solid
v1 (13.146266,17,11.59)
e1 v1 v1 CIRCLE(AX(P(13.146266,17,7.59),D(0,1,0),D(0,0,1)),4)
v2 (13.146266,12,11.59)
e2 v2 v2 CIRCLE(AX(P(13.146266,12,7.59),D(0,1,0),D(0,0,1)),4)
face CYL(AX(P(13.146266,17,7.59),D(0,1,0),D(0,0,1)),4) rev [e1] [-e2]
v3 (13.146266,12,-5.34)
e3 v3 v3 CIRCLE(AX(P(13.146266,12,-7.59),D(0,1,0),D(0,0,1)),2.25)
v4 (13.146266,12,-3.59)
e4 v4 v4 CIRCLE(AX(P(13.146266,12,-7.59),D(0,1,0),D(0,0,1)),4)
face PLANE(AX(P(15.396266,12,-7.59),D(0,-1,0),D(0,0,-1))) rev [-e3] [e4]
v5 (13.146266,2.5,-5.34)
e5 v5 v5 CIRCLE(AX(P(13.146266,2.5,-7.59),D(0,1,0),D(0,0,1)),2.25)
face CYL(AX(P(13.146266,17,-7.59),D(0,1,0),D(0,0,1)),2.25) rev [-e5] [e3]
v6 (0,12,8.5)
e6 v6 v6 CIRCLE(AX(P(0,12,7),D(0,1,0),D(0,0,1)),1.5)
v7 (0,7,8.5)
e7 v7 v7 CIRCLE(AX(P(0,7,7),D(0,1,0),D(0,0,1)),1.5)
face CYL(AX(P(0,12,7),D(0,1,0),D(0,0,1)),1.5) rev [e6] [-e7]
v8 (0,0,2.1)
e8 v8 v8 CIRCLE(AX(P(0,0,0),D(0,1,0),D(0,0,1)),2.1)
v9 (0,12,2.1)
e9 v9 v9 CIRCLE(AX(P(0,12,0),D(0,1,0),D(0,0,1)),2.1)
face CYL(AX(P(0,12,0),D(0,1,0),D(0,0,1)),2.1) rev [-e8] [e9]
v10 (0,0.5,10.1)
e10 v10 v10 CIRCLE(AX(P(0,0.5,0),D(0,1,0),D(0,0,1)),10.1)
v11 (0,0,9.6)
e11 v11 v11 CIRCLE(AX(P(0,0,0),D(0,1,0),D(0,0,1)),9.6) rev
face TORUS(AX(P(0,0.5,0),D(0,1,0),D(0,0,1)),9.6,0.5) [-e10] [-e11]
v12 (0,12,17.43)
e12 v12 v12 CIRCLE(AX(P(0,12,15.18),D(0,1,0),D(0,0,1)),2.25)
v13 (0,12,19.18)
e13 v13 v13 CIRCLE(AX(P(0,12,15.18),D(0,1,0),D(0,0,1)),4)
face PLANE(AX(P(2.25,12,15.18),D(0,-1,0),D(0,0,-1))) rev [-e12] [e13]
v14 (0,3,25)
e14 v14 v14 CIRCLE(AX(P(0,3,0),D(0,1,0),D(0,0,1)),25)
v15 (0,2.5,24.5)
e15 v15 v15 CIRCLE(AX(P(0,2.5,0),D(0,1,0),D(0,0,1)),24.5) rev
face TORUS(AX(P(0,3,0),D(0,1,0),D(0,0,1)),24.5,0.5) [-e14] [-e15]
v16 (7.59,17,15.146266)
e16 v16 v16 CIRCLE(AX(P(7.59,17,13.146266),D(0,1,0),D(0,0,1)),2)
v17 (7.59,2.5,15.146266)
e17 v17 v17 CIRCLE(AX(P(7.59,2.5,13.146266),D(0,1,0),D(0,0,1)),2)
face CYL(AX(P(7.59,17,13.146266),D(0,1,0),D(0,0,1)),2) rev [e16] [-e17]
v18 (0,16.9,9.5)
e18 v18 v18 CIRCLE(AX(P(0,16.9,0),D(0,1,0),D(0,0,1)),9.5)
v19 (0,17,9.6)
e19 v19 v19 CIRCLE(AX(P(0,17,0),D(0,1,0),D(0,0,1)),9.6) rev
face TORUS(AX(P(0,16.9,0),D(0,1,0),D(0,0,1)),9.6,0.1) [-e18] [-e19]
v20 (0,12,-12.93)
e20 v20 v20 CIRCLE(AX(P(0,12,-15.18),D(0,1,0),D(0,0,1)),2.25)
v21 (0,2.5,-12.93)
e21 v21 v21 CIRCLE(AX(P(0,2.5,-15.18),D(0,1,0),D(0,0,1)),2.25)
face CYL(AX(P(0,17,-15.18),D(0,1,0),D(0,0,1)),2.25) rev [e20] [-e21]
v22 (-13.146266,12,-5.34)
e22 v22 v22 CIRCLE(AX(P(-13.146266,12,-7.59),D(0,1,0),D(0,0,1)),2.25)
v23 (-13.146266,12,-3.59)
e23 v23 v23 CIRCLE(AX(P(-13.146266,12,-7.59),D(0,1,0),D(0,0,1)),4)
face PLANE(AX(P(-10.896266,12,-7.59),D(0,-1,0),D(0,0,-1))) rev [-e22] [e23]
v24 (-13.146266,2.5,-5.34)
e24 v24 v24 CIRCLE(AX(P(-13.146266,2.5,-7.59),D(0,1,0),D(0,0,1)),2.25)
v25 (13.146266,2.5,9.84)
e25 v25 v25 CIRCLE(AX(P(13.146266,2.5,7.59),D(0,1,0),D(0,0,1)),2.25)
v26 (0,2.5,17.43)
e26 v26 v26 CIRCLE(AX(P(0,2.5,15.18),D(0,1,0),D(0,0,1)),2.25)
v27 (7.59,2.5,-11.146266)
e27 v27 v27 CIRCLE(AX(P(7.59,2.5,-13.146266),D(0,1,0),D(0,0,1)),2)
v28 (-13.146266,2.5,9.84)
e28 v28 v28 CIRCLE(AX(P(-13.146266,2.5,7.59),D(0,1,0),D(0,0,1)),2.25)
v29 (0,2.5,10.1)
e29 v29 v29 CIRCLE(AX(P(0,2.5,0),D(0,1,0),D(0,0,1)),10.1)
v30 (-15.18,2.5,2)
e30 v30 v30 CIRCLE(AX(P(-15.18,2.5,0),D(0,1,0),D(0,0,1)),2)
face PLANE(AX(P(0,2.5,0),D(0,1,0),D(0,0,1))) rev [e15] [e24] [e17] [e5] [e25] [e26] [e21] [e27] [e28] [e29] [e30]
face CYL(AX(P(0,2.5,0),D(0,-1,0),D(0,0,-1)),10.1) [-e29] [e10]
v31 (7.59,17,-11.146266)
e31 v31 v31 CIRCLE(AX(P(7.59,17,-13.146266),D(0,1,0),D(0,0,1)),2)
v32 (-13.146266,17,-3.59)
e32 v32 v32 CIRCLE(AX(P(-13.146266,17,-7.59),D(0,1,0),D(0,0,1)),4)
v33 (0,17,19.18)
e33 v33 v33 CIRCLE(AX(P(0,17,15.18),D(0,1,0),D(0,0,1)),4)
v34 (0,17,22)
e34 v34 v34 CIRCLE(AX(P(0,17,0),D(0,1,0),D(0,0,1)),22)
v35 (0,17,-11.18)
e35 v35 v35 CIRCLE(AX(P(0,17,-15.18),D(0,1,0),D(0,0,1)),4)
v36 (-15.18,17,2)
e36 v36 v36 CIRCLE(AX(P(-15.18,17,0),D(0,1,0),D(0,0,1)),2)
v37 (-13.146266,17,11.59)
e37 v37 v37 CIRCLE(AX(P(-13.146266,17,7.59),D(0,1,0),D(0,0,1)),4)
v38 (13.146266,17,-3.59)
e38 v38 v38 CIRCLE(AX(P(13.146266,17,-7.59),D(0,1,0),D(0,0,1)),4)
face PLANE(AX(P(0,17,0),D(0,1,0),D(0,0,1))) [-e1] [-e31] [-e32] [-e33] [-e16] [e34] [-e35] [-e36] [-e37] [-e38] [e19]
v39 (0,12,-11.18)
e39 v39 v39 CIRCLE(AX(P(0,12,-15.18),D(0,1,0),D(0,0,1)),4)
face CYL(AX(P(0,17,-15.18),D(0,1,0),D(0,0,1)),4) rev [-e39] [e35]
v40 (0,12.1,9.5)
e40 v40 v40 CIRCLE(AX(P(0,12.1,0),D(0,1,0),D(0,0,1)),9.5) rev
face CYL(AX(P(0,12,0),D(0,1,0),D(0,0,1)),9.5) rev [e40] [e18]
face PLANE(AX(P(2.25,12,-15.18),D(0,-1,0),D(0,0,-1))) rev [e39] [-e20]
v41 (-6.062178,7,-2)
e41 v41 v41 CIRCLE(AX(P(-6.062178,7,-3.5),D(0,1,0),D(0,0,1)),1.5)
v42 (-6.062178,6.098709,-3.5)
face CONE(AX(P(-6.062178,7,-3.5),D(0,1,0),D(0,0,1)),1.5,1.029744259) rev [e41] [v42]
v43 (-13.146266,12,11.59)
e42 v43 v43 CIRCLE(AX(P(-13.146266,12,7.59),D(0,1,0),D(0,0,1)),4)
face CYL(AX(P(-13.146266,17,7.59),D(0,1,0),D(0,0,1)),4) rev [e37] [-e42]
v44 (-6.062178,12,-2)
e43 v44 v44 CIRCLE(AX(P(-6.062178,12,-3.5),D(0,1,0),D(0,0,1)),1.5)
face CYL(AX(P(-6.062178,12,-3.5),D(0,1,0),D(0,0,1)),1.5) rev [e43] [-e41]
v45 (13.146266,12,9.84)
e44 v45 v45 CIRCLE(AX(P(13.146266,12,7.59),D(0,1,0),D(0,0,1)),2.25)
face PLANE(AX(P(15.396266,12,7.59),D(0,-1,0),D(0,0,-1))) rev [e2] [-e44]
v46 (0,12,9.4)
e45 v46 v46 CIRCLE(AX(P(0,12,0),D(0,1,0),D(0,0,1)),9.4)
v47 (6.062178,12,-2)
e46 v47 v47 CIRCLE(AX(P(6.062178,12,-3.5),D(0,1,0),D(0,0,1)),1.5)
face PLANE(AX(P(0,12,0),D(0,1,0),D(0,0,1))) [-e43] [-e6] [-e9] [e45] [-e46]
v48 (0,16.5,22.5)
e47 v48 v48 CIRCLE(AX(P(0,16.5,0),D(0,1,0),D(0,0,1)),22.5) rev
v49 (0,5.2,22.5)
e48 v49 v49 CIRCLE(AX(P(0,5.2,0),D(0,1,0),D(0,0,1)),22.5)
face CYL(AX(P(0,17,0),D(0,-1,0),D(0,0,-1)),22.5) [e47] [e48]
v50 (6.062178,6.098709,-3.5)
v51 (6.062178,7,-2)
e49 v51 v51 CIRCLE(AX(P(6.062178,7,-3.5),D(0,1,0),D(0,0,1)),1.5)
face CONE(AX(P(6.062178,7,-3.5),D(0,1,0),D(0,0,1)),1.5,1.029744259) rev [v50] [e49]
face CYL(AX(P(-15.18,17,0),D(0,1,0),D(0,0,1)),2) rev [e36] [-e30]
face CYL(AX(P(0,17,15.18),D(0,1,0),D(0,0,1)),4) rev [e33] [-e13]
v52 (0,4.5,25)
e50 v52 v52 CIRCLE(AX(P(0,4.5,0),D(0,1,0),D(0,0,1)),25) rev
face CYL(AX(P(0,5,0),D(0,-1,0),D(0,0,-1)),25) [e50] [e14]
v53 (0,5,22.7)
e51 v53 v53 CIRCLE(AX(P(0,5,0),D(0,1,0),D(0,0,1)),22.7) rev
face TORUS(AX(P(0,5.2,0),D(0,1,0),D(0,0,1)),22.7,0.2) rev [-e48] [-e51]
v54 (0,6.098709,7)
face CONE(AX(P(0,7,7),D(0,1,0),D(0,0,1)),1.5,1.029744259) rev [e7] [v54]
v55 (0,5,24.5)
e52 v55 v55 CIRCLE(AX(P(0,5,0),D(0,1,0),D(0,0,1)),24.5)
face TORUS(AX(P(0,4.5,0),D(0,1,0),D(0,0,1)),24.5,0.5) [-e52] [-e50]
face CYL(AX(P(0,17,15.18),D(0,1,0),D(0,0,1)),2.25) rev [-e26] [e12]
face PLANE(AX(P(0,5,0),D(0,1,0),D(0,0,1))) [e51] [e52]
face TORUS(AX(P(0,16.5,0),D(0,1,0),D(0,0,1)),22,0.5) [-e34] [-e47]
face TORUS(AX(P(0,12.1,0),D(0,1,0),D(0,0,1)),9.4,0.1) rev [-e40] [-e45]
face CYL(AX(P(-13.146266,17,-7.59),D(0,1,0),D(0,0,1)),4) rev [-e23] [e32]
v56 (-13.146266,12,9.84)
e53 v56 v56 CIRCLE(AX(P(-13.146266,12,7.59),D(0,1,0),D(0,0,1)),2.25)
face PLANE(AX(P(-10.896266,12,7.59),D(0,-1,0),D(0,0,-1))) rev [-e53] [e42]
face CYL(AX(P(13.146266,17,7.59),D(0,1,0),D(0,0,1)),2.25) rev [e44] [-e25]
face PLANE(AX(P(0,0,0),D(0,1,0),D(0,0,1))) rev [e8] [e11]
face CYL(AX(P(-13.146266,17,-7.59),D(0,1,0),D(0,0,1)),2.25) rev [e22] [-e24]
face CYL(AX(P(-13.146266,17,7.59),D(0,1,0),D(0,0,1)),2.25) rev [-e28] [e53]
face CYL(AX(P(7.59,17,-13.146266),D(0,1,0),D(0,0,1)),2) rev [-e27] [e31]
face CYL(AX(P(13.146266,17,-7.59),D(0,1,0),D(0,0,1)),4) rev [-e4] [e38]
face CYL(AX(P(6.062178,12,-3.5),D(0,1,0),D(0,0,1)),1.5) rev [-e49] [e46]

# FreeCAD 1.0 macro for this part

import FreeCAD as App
import Part
import Sketcher

V = App.Vector
Q = App.Units.Quantity


def edges_at(feature, points):
    """Names of the edges that pass closest to the given points."""
    edges = feature.Shape.Edges
    near = lambda p: min(range(len(edges)), key=lambda i: edges[i].distToShape(Part.Vertex(*p))[0])
    return sorted({f"Edge{near(p) + 1}" for p in points})

doc = App.newDocument("Part")
params = doc.addObject("Spreadsheet::Sheet", "Params")
for row, (alias, value) in enumerate([
    ("sketch1_diameter", "20.2 mm"),
    ("pad1_length", "2.5 mm"),
    ("sketch2_diameter", "50 mm"),
    ("pad2_length", "2.5 mm"),
    ("sketch3_diameter", "45 mm"),
    ("pad3_length", "12 mm"),
    ("sketch4_diameter", "4.5 mm"),
    ("hole_diameter", "4.5 mm"),
    ("hole_cbore_diameter", "8 mm"),
    ("hole_cbore_depth", "5 mm"),
    ("fillet_radius", "0.5 mm"),
    ("fillet2_radius", "0.2 mm"),
    ("sketch5_diameter", "4 mm"),
    ("hole2_diameter", "4 mm"),
    ("sketch6_diameter", "19 mm"),
    ("pocket1_length", "5 mm"),
    ("fillet3_radius", "0.1 mm"),
    ("sketch7_width", "5 mm"),
    ("sketch7_height", "1.5 mm"),
    ("groove_angle", "360 deg"),
    ("sketch8_diameter", "4.2 mm"),
    ("hole3_diameter", "4.2 mm"),
], start=1):
    params.set(f"A{row}", alias)
    params.set(f"B{row}", "=" + value)
    params.setAlias(f"B{row}", alias)

body = doc.addObject("PartDesign::Body", "Body")

# Sketch on XZ plane
sketch1 = body.newObject("Sketcher::SketchObject", "Sketch")
sketch1.AttachmentSupport = (doc.getObject("XZ_Plane"), [""])
sketch1.MapMode = "FlatFace"
sketch1.addGeometry(Part.Circle(V(0, 0, 0), V(0, 0, 1), 10.1), False)
sketch1.addConstraint(Sketcher.Constraint("Coincident", 0, 3, -1, 1))
sketch1.addConstraint(Sketcher.Constraint("Diameter", 0, Q("20.2 mm")))
sketch1.setExpression("Constraints[1]", "Params.sketch1_diameter")
pad1 = body.newObject("PartDesign::Pad", "Pad")
pad1.Profile = sketch1
pad1.setExpression("Length", "Params.pad1_length")
pad1.Reversed = True

# Sketch on XZ plane
sketch2 = body.newObject("Sketcher::SketchObject", "Sketch001")
sketch2.AttachmentSupport = (doc.getObject("XZ_Plane"), [""])
sketch2.MapMode = "FlatFace"
sketch2.AttachmentOffset = App.Placement(V(0, 0, -2.5), App.Rotation())
sketch2.addGeometry(Part.Circle(V(0, 0, 0), V(0, 0, 1), 25), False)
sketch2.addConstraint(Sketcher.Constraint("Coincident", 0, 3, -1, 1))
sketch2.addConstraint(Sketcher.Constraint("Diameter", 0, Q("50 mm")))
sketch2.setExpression("Constraints[1]", "Params.sketch2_diameter")
pad2 = body.newObject("PartDesign::Pad", "Pad001")
pad2.Profile = sketch2
pad2.setExpression("Length", "Params.pad2_length")
pad2.Reversed = True

# Sketch on XZ plane
sketch3 = body.newObject("Sketcher::SketchObject", "Sketch002")
sketch3.AttachmentSupport = (doc.getObject("XZ_Plane"), [""])
sketch3.MapMode = "FlatFace"
sketch3.AttachmentOffset = App.Placement(V(0, 0, -5), App.Rotation())
sketch3.addGeometry(Part.Circle(V(0, 0, 0), V(0, 0, 1), 22.5), False)
sketch3.addConstraint(Sketcher.Constraint("Coincident", 0, 3, -1, 1))
sketch3.addConstraint(Sketcher.Constraint("Diameter", 0, Q("45 mm")))
sketch3.setExpression("Constraints[1]", "Params.sketch3_diameter")
pad3 = body.newObject("PartDesign::Pad", "Pad002")
pad3.Profile = sketch3
pad3.setExpression("Length", "Params.pad3_length")
pad3.Reversed = True

# Sketch on XZ plane
sketch4 = body.newObject("Sketcher::SketchObject", "Sketch003")
sketch4.AttachmentSupport = (doc.getObject("XZ_Plane"), [""])
sketch4.MapMode = "FlatFace"
sketch4.AttachmentOffset = App.Placement(V(0, 0, -17), App.Rotation())
sketch4.addGeometry(Part.Circle(V(0, -15.18, 0), V(0, 0, 1), 2.25), False)
sketch4.addConstraint(Sketcher.Constraint("PointOnObject", 0, 3, -2))
sketch4.addConstraint(Sketcher.Constraint("Diameter", 0, Q("4.5 mm")))
sketch4.addConstraint(Sketcher.Constraint("DistanceY", 0, 3, -1, 1, Q("15.18 mm")))
sketch4.setExpression("Constraints[1]", "Params.sketch4_diameter")
doc.recompute()
hole = body.newObject("PartDesign::Hole", "Hole")
hole.Profile = sketch4
hole.ThreadType = "None"
hole.setExpression("Diameter", "Params.hole_diameter")
hole.DepthType = "ThroughAll"
hole.HoleCutType = "Counterbore"
hole.setExpression("HoleCutDiameter", "Params.hole_cbore_diameter")
hole.setExpression("HoleCutDepth", "Params.hole_cbore_depth")
hole.Reversed = True
doc.recompute()

polarpattern = body.newObject("PartDesign::PolarPattern", "PolarPattern")
polarpattern.Originals = [hole]
polarpattern.Axis = (doc.getObject("Y_Axis"), [""])
polarpattern.Angle = 360
polarpattern.Occurrences = 6
body.Tip = polarpattern
doc.recompute()

fillet = body.newObject("PartDesign::Fillet", "Fillet")
fillet.Base = (polarpattern, edges_at(polarpattern, [
    (-22.5, 17, 0),
    (-10.1, 0, 0),
    (-25, 2.5, 0),
    (-25, 5, 0),
]))
fillet.setExpression("Radius", "Params.fillet_radius")
doc.recompute()

fillet2 = body.newObject("PartDesign::Fillet", "Fillet001")
fillet2.Base = (fillet, edges_at(fillet, [(-22.5, 5, 0)]))
fillet2.setExpression("Radius", "Params.fillet2_radius")

# Sketch on XZ plane
sketch5 = body.newObject("Sketcher::SketchObject", "Sketch004")
sketch5.AttachmentSupport = (doc.getObject("XZ_Plane"), [""])
sketch5.MapMode = "FlatFace"
sketch5.AttachmentOffset = App.Placement(V(0, 0, -17), App.Rotation())
sketch5.addGeometry(Part.Circle(V(-15.18, 0, 0), V(0, 0, 1), 2), False)
sketch5.addConstraint(Sketcher.Constraint("PointOnObject", 0, 3, -1))
sketch5.addConstraint(Sketcher.Constraint("Diameter", 0, Q("4 mm")))
sketch5.addConstraint(Sketcher.Constraint("DistanceX", 0, 3, -1, 1, Q("15.18 mm")))
sketch5.setExpression("Constraints[1]", "Params.sketch5_diameter")
doc.recompute()
hole2 = body.newObject("PartDesign::Hole", "Hole001")
hole2.Profile = sketch5
hole2.ThreadType = "None"
hole2.setExpression("Diameter", "Params.hole2_diameter")
hole2.DepthType = "ThroughAll"
hole2.Reversed = True
doc.recompute()

polarpattern2 = body.newObject("PartDesign::PolarPattern", "PolarPattern001")
polarpattern2.Originals = [hole2]
polarpattern2.Axis = (doc.getObject("Y_Axis"), [""])
polarpattern2.Angle = 360
polarpattern2.Occurrences = 3
body.Tip = polarpattern2

# Sketch on XZ plane
sketch6 = body.newObject("Sketcher::SketchObject", "Sketch005")
sketch6.AttachmentSupport = (doc.getObject("XZ_Plane"), [""])
sketch6.MapMode = "FlatFace"
sketch6.AttachmentOffset = App.Placement(V(0, 0, -17), App.Rotation())
sketch6.addGeometry(Part.Circle(V(0, 0, 0), V(0, 0, 1), 9.5), False)
sketch6.addConstraint(Sketcher.Constraint("Coincident", 0, 3, -1, 1))
sketch6.addConstraint(Sketcher.Constraint("Diameter", 0, Q("19 mm")))
sketch6.setExpression("Constraints[1]", "Params.sketch6_diameter")
pocket1 = body.newObject("PartDesign::Pocket", "Pocket")
pocket1.Profile = sketch6
pocket1.setExpression("Length", "Params.pocket1_length")
pocket1.Reversed = True
doc.recompute()

fillet3 = body.newObject("PartDesign::Fillet", "Fillet002")
fillet3.Base = (pocket1, edges_at(pocket1, [(-9.5, 12, 0), (-9.5, 17, 0)]))
fillet3.setExpression("Radius", "Params.fillet3_radius")

# Sketch on YZ plane
sketch7 = body.newObject("Sketcher::SketchObject", "Sketch006")
sketch7.AttachmentSupport = (doc.getObject("YZ_Plane"), [""])
sketch7.MapMode = "FlatFace"
sketch7.addGeometry(Part.LineSegment(V(6.098709, 7, 0), V(12, 7, 0)), False)
sketch7.addGeometry(Part.LineSegment(V(12, 7, 0), V(12, 8.5, 0)), False)
sketch7.addGeometry(Part.LineSegment(V(12, 8.5, 0), V(7, 8.5, 0)), False)
sketch7.addGeometry(Part.LineSegment(V(7, 8.5, 0), V(6.098709, 7, 0)), False)
sketch7.addGeometry(Part.LineSegment(V(12, 7, 0), V(6.098709, 7, 0)), True)  # axis
sketch7.addConstraint(Sketcher.Constraint("Coincident", 0, 2, 1, 1))
sketch7.addConstraint(Sketcher.Constraint("Coincident", 1, 2, 2, 1))
sketch7.addConstraint(Sketcher.Constraint("Coincident", 2, 2, 3, 1))
sketch7.addConstraint(Sketcher.Constraint("Coincident", 3, 2, 0, 1))
sketch7.addConstraint(Sketcher.Constraint("Horizontal", 0))
sketch7.addConstraint(Sketcher.Constraint("Vertical", 1))
sketch7.addConstraint(Sketcher.Constraint("Horizontal", 2))
sketch7.addConstraint(Sketcher.Constraint("Horizontal", 4))
sketch7.addConstraint(Sketcher.Constraint("Coincident", 4, 1, 0, 2))
sketch7.addConstraint(Sketcher.Constraint("Equal", 0, 4))
sketch7.addConstraint(Sketcher.Constraint("DistanceX", 2, 2, 2, 1, Q("5 mm")))
sketch7.addConstraint(Sketcher.Constraint("Angle", 3, Q("-121 deg")))
sketch7.addConstraint(Sketcher.Constraint("DistanceY", 1, 1, 1, 2, Q("1.5 mm")))
sketch7.addConstraint(Sketcher.Constraint("DistanceX", -1, 1, 0, 2, Q("12 mm")))
sketch7.addConstraint(Sketcher.Constraint("DistanceY", -1, 1, 0, 2, Q("7 mm")))
sketch7.setExpression("Constraints[10]", "Params.sketch7_width")
sketch7.setExpression("Constraints[12]", "Params.sketch7_height")
groove = body.newObject("PartDesign::Groove", "Groove")
groove.Profile = sketch7
groove.ReferenceAxis = (sketch7, ["Axis0"])
groove.setExpression("Angle", "Params.groove_angle")
doc.recompute()

polarpattern3 = body.newObject("PartDesign::PolarPattern", "PolarPattern002")
polarpattern3.Originals = [groove]
polarpattern3.Axis = (doc.getObject("Y_Axis"), [""])
polarpattern3.Angle = 360
polarpattern3.Occurrences = 3
body.Tip = polarpattern3

# Sketch on XZ plane
sketch8 = body.newObject("Sketcher::SketchObject", "Sketch007")
sketch8.AttachmentSupport = (doc.getObject("XZ_Plane"), [""])
sketch8.MapMode = "FlatFace"
sketch8.AttachmentOffset = App.Placement(V(0, 0, -12), App.Rotation())
sketch8.addGeometry(Part.Circle(V(0, 0, 0), V(0, 0, 1), 2.1), False)
sketch8.addConstraint(Sketcher.Constraint("Coincident", 0, 3, -1, 1))
sketch8.addConstraint(Sketcher.Constraint("Diameter", 0, Q("4.2 mm")))
sketch8.setExpression("Constraints[1]", "Params.sketch8_diameter")
doc.recompute()
hole3 = body.newObject("PartDesign::Hole", "Hole002")
hole3.Profile = sketch8
hole3.ThreadType = "None"
hole3.setExpression("Diameter", "Params.hole3_diameter")
hole3.DepthType = "ThroughAll"
hole3.Reversed = True

doc.recompute()
